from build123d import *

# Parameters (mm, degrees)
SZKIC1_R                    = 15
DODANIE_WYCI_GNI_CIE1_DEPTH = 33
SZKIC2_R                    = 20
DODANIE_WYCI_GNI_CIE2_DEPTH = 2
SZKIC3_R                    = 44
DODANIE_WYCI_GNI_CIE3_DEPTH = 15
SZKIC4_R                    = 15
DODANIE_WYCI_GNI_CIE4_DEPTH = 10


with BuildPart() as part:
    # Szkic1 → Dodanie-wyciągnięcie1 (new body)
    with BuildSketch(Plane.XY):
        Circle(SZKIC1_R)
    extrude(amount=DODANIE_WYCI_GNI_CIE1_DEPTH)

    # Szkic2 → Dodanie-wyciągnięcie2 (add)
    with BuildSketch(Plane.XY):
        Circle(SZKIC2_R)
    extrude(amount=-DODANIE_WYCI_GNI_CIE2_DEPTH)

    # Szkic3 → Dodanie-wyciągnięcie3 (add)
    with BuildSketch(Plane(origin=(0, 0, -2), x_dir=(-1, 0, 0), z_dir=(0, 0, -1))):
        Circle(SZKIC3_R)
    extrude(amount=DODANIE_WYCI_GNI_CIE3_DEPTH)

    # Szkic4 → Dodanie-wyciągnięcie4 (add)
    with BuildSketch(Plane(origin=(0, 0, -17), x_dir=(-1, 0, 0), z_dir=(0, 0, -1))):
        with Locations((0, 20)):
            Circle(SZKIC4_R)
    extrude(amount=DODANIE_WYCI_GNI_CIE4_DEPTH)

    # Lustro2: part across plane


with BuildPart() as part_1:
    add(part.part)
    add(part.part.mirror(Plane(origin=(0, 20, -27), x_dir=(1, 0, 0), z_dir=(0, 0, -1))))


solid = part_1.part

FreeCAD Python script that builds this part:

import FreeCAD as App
import Part
import Sketcher
from FreeCAD import Vector
Q = App.Units.Quantity

doc = App.newDocument("Part")
params = doc.addObject("Spreadsheet::Sheet", "Params")
for row, (alias, value) in enumerate([
    ("sketch1_diameter", "30 mm"),
    ("pad1_length", "33 mm"),
    ("sketch2_diameter", "40 mm"),
    ("pad2_length", "2 mm"),
    ("sketch3_diameter", "88 mm"),
    ("pad3_length", "15 mm"),
    ("sketch4_diameter", "30 mm"),
    ("pad4_length", "10 mm"),
], start=1):
    params.set(f"A{row}", alias)
    params.set(f"B{row}", "=" + value)
    params.setAlias(f"B{row}", alias)

body = doc.addObject("PartDesign::Body", "Body")

# Sketch on XY plane
sketch1 = doc.addObject("Sketcher::SketchObject", "Sketch")
body.addObject(sketch1)
sketch1.AttachmentSupport = (doc.XY_Plane, [""])
sketch1.MapMode = "FlatFace"
sketch1.addGeometry(Part.Circle(Vector(0, 0, 0), Vector(0, 0, 1), 15), False)
sketch1.addConstraint(Sketcher.Constraint("Coincident", 0, 3, -1, 1))
sketch1.addConstraint(Sketcher.Constraint("Diameter", 0, Q("30 mm")))
sketch1.setExpression("Constraints[1]", "Params.sketch1_diameter")
pad1 = doc.addObject("PartDesign::Pad", "Pad")
body.addObject(pad1)
pad1.Profile = sketch1
pad1.setExpression("Length", "Params.pad1_length")

# Sketch on XY plane
sketch2 = doc.addObject("Sketcher::SketchObject", "Sketch001")
body.addObject(sketch2)
sketch2.AttachmentSupport = (doc.XY_Plane, [""])
sketch2.MapMode = "FlatFace"
sketch2.addGeometry(Part.Circle(Vector(0, 0, 0), Vector(0, 0, 1), 20), False)
sketch2.addConstraint(Sketcher.Constraint("Coincident", 0, 3, -1, 1))
sketch2.addConstraint(Sketcher.Constraint("Diameter", 0, Q("40 mm")))
sketch2.setExpression("Constraints[1]", "Params.sketch2_diameter")
pad2 = doc.addObject("PartDesign::Pad", "Pad001")
body.addObject(pad2)
pad2.Profile = sketch2
pad2.setExpression("Length", "Params.pad2_length")
pad2.Reversed = True

# Sketch on XY plane
sketch3 = doc.addObject("Sketcher::SketchObject", "Sketch002")
body.addObject(sketch3)
sketch3.AttachmentSupport = (doc.XY_Plane, [""])
sketch3.MapMode = "FlatFace"
sketch3.AttachmentOffset = App.Placement(Vector(0, 0, -2), App.Rotation())
sketch3.addGeometry(Part.Circle(Vector(0, 0, 0), Vector(0, 0, 1), 44), False)
sketch3.addConstraint(Sketcher.Constraint("Coincident", 0, 3, -1, 1))
sketch3.addConstraint(Sketcher.Constraint("Diameter", 0, Q("88 mm")))
sketch3.setExpression("Constraints[1]", "Params.sketch3_diameter")
pad3 = doc.addObject("PartDesign::Pad", "Pad002")
body.addObject(pad3)
pad3.Profile = sketch3
pad3.setExpression("Length", "Params.pad3_length")
pad3.Reversed = True

# Sketch on XY plane
sketch4 = doc.addObject("Sketcher::SketchObject", "Sketch003")
body.addObject(sketch4)
sketch4.AttachmentSupport = (doc.XY_Plane, [""])
sketch4.MapMode = "FlatFace"
sketch4.AttachmentOffset = App.Placement(Vector(0, 0, -17), App.Rotation())
sketch4.addGeometry(Part.Circle(Vector(0, 20, 0), Vector(0, 0, 1), 15), False)
sketch4.addConstraint(Sketcher.Constraint("PointOnObject", 0, 3, -2))
sketch4.addConstraint(Sketcher.Constraint("Diameter", 0, Q("30 mm")))
sketch4.addConstraint(Sketcher.Constraint("DistanceY", -1, 1, 0, 3, Q("20 mm")))
sketch4.setExpression("Constraints[1]", "Params.sketch4_diameter")
pad4 = doc.addObject("PartDesign::Pad", "Pad003")
body.addObject(pad4)
pad4.Profile = sketch4
pad4.setExpression("Length", "Params.pad4_length")
pad4.Reversed = True
body2 = doc.addObject("PartDesign::Body", "Body001")
doc.recompute()

body2.BaseFeature = body
doc.recompute()

mirroring = doc.addObject("Part::Mirroring", "Mirroring")
mirroring.Source = body
mirroring.Base = Vector(0, 20, -27)
mirroring.Normal = Vector(0, 0, -1)
body3 = doc.addObject("PartDesign::Body", "Body002")
body3.BaseFeature = mirroring
boolean = doc.addObject("PartDesign::Boolean", "Boolean")
body2.addObject(boolean)
boolean.Type = "Fuse"
boolean.addObjects([body3])
doc.recompute()
mirroring.Visibility = False

doc.recompute()
